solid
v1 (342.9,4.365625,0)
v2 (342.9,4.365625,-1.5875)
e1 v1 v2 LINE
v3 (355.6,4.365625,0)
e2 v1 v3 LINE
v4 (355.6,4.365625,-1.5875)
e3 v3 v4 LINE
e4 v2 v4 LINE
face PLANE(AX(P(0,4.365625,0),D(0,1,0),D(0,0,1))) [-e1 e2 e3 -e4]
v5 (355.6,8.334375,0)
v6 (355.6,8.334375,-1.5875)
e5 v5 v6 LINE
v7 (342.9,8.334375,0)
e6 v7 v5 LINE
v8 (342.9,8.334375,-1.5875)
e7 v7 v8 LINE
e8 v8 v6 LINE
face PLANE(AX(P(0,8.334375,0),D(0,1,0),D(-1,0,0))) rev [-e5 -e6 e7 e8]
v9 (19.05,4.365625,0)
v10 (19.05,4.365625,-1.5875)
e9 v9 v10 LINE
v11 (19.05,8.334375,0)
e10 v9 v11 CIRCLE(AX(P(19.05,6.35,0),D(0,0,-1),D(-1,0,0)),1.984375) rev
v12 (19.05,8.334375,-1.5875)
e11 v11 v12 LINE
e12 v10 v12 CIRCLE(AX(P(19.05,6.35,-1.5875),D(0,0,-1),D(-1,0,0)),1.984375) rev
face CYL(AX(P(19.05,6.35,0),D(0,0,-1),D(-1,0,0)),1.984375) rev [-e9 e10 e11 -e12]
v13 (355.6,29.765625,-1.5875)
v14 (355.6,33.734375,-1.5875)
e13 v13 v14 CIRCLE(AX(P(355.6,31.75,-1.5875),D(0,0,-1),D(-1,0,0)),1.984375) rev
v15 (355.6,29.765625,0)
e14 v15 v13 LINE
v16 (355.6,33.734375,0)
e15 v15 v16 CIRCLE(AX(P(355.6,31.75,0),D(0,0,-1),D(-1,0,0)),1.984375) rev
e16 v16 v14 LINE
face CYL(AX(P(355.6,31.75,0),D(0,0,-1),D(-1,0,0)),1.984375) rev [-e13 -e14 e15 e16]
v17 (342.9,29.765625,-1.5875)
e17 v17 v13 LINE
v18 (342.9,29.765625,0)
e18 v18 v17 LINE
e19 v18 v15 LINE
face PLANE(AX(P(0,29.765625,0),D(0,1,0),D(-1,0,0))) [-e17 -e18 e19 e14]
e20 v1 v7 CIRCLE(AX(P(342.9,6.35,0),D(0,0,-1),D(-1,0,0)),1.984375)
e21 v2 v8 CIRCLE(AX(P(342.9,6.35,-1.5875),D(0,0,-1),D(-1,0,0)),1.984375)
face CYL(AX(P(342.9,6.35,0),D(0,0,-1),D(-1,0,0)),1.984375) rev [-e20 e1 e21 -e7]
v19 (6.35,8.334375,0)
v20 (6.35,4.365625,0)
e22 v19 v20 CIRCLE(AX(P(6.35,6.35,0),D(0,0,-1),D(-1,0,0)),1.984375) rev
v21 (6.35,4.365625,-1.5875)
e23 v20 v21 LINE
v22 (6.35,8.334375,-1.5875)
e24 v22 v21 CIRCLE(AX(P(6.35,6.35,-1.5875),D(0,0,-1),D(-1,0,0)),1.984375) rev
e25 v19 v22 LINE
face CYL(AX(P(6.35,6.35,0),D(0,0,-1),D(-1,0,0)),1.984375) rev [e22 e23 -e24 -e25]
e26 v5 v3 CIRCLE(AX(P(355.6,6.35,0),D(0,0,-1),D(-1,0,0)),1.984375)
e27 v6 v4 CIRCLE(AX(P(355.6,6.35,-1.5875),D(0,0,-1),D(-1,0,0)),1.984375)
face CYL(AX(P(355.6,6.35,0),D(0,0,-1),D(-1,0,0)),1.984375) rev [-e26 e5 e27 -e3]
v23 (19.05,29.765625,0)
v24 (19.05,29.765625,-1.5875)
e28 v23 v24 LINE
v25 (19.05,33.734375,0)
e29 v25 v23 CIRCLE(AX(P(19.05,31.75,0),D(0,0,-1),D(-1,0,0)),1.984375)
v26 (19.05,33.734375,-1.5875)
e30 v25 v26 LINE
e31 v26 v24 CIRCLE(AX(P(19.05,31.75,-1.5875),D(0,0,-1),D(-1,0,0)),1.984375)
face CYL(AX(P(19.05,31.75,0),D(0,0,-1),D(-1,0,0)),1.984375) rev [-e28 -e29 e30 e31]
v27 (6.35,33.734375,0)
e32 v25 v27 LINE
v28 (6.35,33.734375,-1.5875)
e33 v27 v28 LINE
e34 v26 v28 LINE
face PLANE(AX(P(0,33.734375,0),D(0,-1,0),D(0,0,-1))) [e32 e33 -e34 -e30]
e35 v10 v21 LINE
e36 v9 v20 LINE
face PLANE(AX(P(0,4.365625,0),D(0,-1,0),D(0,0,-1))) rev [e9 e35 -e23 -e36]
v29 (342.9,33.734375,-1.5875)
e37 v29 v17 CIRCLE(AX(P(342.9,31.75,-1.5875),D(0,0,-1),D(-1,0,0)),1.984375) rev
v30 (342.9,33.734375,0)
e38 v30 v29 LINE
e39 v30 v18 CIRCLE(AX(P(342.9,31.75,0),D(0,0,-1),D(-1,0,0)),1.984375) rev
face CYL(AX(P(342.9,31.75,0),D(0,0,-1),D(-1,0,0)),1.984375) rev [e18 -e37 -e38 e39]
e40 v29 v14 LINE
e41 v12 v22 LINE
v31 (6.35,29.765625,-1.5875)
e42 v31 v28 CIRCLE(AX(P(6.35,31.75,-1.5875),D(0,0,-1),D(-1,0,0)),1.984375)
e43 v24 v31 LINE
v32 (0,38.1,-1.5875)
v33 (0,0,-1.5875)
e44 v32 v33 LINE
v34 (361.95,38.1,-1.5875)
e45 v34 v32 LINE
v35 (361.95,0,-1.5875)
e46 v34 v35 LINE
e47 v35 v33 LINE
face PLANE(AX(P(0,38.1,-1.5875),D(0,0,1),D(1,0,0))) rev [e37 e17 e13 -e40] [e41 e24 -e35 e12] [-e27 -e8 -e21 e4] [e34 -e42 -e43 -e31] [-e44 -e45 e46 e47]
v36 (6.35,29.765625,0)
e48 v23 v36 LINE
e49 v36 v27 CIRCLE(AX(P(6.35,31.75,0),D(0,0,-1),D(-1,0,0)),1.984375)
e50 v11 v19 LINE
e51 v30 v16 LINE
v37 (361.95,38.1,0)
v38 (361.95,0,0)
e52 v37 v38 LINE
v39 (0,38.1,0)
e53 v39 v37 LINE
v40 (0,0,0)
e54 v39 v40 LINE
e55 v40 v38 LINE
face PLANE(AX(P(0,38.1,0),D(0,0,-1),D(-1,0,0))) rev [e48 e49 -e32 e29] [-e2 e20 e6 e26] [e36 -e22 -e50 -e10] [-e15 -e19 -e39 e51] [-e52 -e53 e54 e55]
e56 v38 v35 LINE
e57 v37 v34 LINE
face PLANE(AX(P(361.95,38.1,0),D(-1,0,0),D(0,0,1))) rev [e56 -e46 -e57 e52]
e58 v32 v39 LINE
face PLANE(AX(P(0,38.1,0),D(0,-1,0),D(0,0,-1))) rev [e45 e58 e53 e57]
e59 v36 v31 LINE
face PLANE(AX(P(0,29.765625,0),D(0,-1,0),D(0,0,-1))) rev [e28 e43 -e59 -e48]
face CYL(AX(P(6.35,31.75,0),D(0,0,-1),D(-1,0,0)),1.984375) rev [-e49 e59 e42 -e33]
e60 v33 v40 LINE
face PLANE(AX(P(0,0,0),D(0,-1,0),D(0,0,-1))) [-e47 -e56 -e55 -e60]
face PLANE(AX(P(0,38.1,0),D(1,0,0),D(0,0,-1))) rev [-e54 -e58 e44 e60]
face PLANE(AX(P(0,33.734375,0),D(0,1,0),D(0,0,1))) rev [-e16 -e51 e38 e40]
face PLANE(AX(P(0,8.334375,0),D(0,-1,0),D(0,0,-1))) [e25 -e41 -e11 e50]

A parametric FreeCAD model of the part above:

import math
import FreeCAD as App
import Part
import Sketcher

V = App.Vector
Q = App.Units.Quantity


def add_polygon(sketch, points):
    """Adds a closed chain of lines whose ends are joined by coincident constraints."""
    first, n = sketch.GeometryCount, len(points)
    for a, b in zip(points, points[1:] + points[:1]):
        sketch.addGeometry(Part.LineSegment(App.Vector(*a, 0), App.Vector(*b, 0)), False)
    for i in range(n):
        sketch.addConstraint(Sketcher.Constraint("Coincident", first + i, 2, first + (i + 1) % n, 1))

doc = App.newDocument("Part")
body = doc.addObject("PartDesign::Body", "Body")

# Sketch on XZ plane
sketch1 = body.newObject("Sketcher::SketchObject", "Sketch")
sketch1.AttachmentSupport = (doc.getObject("XZ_Plane"), [""])
sketch1.MapMode = "FlatFace"
add_polygon(sketch1, [(0, 0), (361.9, 0), (361.9, -1.6), (0, -1.6)])  # lines 0-3
sketch1.addConstraint(Sketcher.Constraint("Horizontal", 0))
sketch1.addConstraint(Sketcher.Constraint("Vertical", 1))
sketch1.addConstraint(Sketcher.Constraint("Horizontal", 2))
sketch1.addConstraint(Sketcher.Constraint("Vertical", 3))
sketch1.addConstraint(Sketcher.Constraint("Coincident", 3, 2, -1, 1))
sketch1.addConstraint(Sketcher.Constraint("DistanceX", 0, 1, 0, 2, Q("14.25 in")))
sketch1.addConstraint(Sketcher.Constraint("DistanceY", 1, 2, 1, 1, Q("0.0625 in")))
pad1 = body.newObject("PartDesign::Pad", "Pad")
pad1.Profile = sketch1
pad1.Length = Q("1.5 in")
pad1.Reversed = True

# Sketch on XY plane
sketch2 = body.newObject("Sketcher::SketchObject", "Sketch001")
sketch2.AttachmentSupport = (doc.getObject("XY_Plane"), [""])
sketch2.MapMode = "FlatFace"
sketch2.AttachmentOffset = App.Placement(V(0, 0, -0.0625 * 25.4), App.Rotation())
sketch2.addGeometry(Part.LineSegment(V(19.1, 29.8, 0), V(6.3, 29.8, 0)), False)
sketch2.addGeometry(Part.ArcOfCircle(Part.Circle(V(6.3, 31.8, 0), V(0, 0, 1), 2), math.radians(90), math.radians(270)), False)
sketch2.addGeometry(Part.LineSegment(V(6.3, 33.7, 0), V(19.1, 33.7, 0)), False)
sketch2.addGeometry(Part.ArcOfCircle(Part.Circle(V(19.1, 31.8, 0), V(0, 0, 1), 2), math.radians(-90), math.radians(90)), False)
sketch2.addGeometry(Part.ArcOfCircle(Part.Circle(V(6.3, 6.3, 0), V(0, 0, 1), 2), math.radians(90), math.radians(270)), False)
sketch2.addGeometry(Part.LineSegment(V(6.3, 8.3, 0), V(19.1, 8.3, 0)), False)
sketch2.addGeometry(Part.ArcOfCircle(Part.Circle(V(19.1, 6.3, 0), V(0, 0, 1), 2), math.radians(-90), math.radians(90)), False)
sketch2.addGeometry(Part.LineSegment(V(19.1, 4.4, 0), V(6.3, 4.4, 0)), False)
sketch2.addGeometry(Part.LineSegment(V(342.9, 8.3, 0), V(355.6, 8.3, 0)), False)
sketch2.addGeometry(Part.ArcOfCircle(Part.Circle(V(355.6, 6.3, 0), V(0, 0, 1), 2), math.radians(-90), math.radians(90)), False)
sketch2.addGeometry(Part.LineSegment(V(355.6, 4.4, 0), V(342.9, 4.4, 0)), False)
sketch2.addGeometry(Part.ArcOfCircle(Part.Circle(V(342.9, 6.3, 0), V(0, 0, 1), 2), math.radians(90), math.radians(270)), False)
sketch2.addGeometry(Part.ArcOfCircle(Part.Circle(V(355.6, 31.8, 0), V(0, 0, 1), 2), math.radians(-90), math.radians(90)), False)
sketch2.addGeometry(Part.LineSegment(V(355.6, 29.8, 0), V(342.9, 29.8, 0)), False)
sketch2.addGeometry(Part.ArcOfCircle(Part.Circle(V(342.9, 31.8, 0), V(0, 0, 1), 2), math.radians(90), math.radians(270)), False)
sketch2.addGeometry(Part.LineSegment(V(342.9, 33.7, 0), V(355.6, 33.7, 0)), False)
sketch2.addConstraint(Sketcher.Constraint("Tangent", 0, 2, 1, 2))
sketch2.addConstraint(Sketcher.Constraint("Tangent", 1, 1, 2, 1))
sketch2.addConstraint(Sketcher.Constraint("Tangent", 2, 2, 3, 2))
sketch2.addConstraint(Sketcher.Constraint("Tangent", 3, 1, 0, 1))
sketch2.addConstraint(Sketcher.Constraint("Tangent", 4, 1, 5, 1))
sketch2.addConstraint(Sketcher.Constraint("Tangent", 5, 2, 6, 2))
sketch2.addConstraint(Sketcher.Constraint("Tangent", 6, 1, 7, 1))
sketch2.addConstraint(Sketcher.Constraint("Tangent", 7, 2, 4, 2))
sketch2.addConstraint(Sketcher.Constraint("Tangent", 8, 2, 9, 2))
sketch2.addConstraint(Sketcher.Constraint("Tangent", 9, 1, 10, 1))
sketch2.addConstraint(Sketcher.Constraint("Tangent", 10, 2, 11, 2))
sketch2.addConstraint(Sketcher.Constraint("Tangent", 11, 1, 8, 1))
sketch2.addConstraint(Sketcher.Constraint("Tangent", 12, 1, 13, 1))
sketch2.addConstraint(Sketcher.Constraint("Tangent", 13, 2, 14, 2))
sketch2.addConstraint(Sketcher.Constraint("Tangent", 14, 1, 15, 1))
sketch2.addConstraint(Sketcher.Constraint("Tangent", 15, 2, 12, 2))
sketch2.addConstraint(Sketcher.Constraint("Horizontal", 0))
sketch2.addConstraint(Sketcher.Constraint("Horizontal", 2))
sketch2.addConstraint(Sketcher.Constraint("Horizontal", 5))
sketch2.addConstraint(Sketcher.Constraint("Horizontal", 7))
sketch2.addConstraint(Sketcher.Constraint("Horizontal", 8))
sketch2.addConstraint(Sketcher.Constraint("Horizontal", 10))
sketch2.addConstraint(Sketcher.Constraint("Horizontal", 13))
sketch2.addConstraint(Sketcher.Constraint("Horizontal", 15))
sketch2.addConstraint(Sketcher.Constraint("Equal", 3, 4))
sketch2.addConstraint(Sketcher.Constraint("Equal", 6, 9))
sketch2.addConstraint(Sketcher.Constraint("Equal", 11, 12))
sketch2.addConstraint(Sketcher.Constraint("Horizontal", 6, 3, 9, 3))
sketch2.addConstraint(Sketcher.Constraint("Horizontal", 3, 3, 12, 3))
sketch2.addConstraint(Sketcher.Constraint("Vertical", 1, 3, 4, 3))
sketch2.addConstraint(Sketcher.Constraint("Vertical", 3, 3, 6, 3))
sketch2.addConstraint(Sketcher.Constraint("Vertical", 9, 3, 12, 3))
sketch2.addConstraint(Sketcher.Constraint("Vertical", 11, 3, 14, 3))
sketch2.addConstraint(Sketcher.Constraint("Equal", 7, 8))
sketch2.addConstraint(Sketcher.Constraint("DistanceX", 0, 2, 0, 1, Q("0.5 in")))
sketch2.addConstraint(Sketcher.Constraint("DistanceX", -1, 1, 9, 3, Q("14 in")))
sketch2.addConstraint(Sketcher.Constraint("Radius", 1, Q("0.078125 in")))
sketch2.addConstraint(Sketcher.Constraint("DistanceY", 4, 3, 1, 3, Q("1 in")))
sketch2.addConstraint(Sketcher.Constraint("DistanceX", -1, 1, 1, 3, Q("0.25 in")))
sketch2.addConstraint(Sketcher.Constraint("DistanceY", -1, 1, 1, 3, Q("1.25 in")))
pocket1 = body.newObject("PartDesign::Pocket", "Pocket")
pocket1.Profile = sketch2
pocket1.Type = "ThroughAll"
pocket1.Reversed = True

doc.recompute()
